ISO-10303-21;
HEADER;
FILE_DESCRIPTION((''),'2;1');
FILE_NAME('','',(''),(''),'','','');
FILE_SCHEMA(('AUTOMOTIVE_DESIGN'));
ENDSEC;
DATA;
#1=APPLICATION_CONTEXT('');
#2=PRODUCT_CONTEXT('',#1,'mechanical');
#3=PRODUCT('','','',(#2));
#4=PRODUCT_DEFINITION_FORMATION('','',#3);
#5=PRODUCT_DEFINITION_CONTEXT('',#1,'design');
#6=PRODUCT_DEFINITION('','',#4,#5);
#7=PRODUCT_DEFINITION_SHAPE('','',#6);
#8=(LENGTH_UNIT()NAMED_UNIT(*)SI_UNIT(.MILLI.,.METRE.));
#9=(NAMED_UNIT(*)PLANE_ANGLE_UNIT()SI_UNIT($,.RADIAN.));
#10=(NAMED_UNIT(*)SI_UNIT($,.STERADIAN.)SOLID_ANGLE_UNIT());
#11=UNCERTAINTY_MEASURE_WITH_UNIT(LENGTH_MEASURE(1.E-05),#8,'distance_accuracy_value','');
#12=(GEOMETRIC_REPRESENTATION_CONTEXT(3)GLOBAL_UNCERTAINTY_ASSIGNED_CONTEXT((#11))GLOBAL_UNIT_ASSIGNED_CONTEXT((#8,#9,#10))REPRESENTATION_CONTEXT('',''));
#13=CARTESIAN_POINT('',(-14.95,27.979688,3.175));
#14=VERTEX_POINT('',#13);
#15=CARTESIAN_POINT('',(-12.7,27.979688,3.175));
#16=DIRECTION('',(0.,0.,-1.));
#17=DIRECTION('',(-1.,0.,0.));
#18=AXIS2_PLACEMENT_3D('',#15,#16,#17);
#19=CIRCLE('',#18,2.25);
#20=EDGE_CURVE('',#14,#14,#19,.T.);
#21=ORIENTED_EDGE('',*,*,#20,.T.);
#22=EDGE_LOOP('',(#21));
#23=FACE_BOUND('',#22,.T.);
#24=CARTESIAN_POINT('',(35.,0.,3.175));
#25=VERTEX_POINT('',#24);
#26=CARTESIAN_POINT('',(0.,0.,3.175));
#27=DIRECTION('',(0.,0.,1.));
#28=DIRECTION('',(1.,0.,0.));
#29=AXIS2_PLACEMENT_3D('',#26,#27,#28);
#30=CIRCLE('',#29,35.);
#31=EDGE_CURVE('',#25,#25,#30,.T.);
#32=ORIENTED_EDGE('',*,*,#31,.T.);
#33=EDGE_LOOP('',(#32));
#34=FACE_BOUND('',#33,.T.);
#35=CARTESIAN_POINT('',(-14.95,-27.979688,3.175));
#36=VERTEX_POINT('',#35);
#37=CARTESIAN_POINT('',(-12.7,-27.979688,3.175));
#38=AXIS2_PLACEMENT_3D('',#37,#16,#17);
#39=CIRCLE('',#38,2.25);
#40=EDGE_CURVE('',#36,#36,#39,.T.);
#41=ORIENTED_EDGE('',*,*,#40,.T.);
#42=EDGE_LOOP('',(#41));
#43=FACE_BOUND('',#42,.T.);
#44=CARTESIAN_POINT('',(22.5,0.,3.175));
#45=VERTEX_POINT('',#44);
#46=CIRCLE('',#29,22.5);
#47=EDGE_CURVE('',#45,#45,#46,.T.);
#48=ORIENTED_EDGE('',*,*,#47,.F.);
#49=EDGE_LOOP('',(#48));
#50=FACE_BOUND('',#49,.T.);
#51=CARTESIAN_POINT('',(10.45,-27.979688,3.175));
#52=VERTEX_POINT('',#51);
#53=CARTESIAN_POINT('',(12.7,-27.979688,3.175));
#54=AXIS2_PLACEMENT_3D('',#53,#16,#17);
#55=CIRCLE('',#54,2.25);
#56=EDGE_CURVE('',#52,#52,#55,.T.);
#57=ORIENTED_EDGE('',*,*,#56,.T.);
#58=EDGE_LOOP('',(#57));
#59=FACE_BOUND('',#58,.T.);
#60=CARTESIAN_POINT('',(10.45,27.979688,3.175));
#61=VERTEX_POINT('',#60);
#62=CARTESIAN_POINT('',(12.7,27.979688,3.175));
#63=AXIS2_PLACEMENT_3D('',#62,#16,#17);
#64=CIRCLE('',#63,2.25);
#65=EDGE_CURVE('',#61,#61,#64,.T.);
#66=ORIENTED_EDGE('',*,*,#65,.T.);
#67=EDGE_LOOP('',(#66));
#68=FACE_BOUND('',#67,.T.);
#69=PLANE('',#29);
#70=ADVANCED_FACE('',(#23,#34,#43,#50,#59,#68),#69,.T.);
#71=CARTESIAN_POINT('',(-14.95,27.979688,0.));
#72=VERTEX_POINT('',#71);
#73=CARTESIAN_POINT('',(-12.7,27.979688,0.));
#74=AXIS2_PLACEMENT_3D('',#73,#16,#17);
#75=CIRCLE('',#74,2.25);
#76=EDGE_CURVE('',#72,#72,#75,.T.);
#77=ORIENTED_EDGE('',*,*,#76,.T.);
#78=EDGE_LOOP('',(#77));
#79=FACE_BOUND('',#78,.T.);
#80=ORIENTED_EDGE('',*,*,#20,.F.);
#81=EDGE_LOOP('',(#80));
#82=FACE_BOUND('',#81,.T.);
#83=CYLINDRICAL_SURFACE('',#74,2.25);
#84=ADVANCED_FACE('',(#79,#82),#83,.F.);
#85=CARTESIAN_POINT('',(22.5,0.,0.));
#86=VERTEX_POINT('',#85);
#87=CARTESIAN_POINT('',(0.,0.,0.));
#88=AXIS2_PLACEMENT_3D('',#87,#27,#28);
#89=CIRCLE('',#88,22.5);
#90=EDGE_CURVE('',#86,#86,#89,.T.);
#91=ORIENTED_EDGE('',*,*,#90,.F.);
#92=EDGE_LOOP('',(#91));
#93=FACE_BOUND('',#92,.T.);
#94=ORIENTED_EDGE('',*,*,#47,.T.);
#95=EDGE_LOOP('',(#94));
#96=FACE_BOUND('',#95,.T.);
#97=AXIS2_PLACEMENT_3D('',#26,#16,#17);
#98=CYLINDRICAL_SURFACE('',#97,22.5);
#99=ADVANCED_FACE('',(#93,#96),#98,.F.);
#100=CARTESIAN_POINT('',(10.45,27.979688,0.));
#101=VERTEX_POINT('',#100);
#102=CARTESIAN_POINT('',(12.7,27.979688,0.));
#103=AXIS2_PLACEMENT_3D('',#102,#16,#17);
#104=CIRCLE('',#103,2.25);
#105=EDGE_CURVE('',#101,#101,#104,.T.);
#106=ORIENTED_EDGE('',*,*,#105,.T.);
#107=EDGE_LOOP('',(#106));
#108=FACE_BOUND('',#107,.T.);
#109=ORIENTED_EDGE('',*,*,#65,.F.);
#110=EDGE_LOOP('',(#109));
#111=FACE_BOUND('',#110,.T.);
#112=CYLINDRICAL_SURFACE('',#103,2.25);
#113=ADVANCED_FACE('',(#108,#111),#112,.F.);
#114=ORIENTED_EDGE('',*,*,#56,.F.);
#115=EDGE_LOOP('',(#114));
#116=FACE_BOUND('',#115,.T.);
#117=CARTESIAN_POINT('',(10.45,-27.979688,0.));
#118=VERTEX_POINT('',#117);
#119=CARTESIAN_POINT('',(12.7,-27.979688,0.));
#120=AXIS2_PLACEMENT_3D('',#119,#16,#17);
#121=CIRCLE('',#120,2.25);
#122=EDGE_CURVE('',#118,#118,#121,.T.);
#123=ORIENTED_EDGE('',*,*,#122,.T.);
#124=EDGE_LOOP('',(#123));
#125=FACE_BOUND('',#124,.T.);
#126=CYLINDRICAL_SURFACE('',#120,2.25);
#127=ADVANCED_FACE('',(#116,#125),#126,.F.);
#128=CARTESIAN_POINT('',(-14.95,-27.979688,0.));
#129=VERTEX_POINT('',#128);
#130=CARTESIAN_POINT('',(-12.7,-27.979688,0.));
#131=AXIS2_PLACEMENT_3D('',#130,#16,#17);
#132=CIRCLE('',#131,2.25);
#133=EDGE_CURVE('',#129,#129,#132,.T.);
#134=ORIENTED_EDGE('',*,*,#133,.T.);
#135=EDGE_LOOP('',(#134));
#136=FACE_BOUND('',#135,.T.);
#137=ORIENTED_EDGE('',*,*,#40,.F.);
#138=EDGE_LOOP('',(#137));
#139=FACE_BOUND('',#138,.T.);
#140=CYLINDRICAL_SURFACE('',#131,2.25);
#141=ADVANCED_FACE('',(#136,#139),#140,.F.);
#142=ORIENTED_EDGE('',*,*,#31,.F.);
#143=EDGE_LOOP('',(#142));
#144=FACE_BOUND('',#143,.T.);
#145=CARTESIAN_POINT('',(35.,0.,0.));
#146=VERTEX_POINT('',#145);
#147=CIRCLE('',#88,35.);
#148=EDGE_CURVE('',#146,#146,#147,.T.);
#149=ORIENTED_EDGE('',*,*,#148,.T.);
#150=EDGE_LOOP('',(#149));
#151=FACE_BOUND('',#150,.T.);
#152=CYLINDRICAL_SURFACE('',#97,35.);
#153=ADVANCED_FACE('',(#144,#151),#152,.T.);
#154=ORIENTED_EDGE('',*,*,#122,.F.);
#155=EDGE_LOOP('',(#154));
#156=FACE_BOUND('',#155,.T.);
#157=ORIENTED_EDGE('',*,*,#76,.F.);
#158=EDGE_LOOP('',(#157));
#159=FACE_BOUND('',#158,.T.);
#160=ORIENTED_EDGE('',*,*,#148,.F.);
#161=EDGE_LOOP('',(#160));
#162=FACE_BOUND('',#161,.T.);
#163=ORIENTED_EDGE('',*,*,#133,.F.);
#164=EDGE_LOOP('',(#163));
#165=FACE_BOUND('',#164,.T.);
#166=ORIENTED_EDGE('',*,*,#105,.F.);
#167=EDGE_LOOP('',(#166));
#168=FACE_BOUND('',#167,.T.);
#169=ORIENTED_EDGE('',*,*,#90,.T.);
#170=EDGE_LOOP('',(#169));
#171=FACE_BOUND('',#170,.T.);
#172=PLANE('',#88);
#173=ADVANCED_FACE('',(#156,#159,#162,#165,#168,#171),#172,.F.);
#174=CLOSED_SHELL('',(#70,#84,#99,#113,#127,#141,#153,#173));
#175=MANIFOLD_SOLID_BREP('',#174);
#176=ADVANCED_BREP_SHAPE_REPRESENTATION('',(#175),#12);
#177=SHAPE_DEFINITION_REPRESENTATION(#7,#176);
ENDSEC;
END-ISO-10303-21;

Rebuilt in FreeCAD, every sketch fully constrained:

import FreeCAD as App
import Part
import Sketcher
from FreeCAD import Vector
Q = App.Units.Quantity

doc = App.newDocument("Part")
body = doc.addObject("PartDesign::Body", "Body")

# Sketch on XY plane
sketch1 = body.newObject("Sketcher::SketchObject", "Sketch")
sketch1.AttachmentSupport = (doc.getObject("XY_Plane"), [""])
sketch1.MapMode = "FlatFace"
sketch1.addGeometry(Part.Circle(Vector(0, 0, 0), Vector(0, 0, 1), 35), False)
sketch1.addGeometry(Part.Circle(Vector(0, 0, 0), Vector(0, 0, 1), 22), False)
sketch1.addConstraint(Sketcher.Constraint("Coincident", 0, 3, -1, 1))
sketch1.addConstraint(Sketcher.Constraint("Coincident", 1, 3, -1, 1))
sketch1.addConstraint(Sketcher.Constraint("Diameter", 0, Q("70 mm")))
sketch1.addConstraint(Sketcher.Constraint("Diameter", 1, Q("45 mm")))
pad1 = body.newObject("PartDesign::Pad", "Pad")
pad1.Profile = sketch1
pad1.Length = 3.175

# Sketch on XY plane
sketch2 = body.newObject("Sketcher::SketchObject", "Sketch001")
sketch2.AttachmentSupport = (doc.getObject("XY_Plane"), [""])
sketch2.MapMode = "FlatFace"
sketch2.addGeometry(Part.Circle(Vector(12.7, 28, 0), Vector(0, 0, 1), 2.2), False)
sketch2.addGeometry(Part.Circle(Vector(-12.7, 28, 0), Vector(0, 0, 1), 2.2), False)
sketch2.addGeometry(Part.Circle(Vector(-12.7, -28, 0), Vector(0, 0, 1), 2.2), False)
sketch2.addGeometry(Part.Circle(Vector(12.7, -28, 0), Vector(0, 0, 1), 2.2), False)
sketch2.addConstraint(Sketcher.Constraint("Equal", 0, 1))
sketch2.addConstraint(Sketcher.Constraint("Equal", 1, 2))
sketch2.addConstraint(Sketcher.Constraint("Equal", 2, 3))
sketch2.addConstraint(Sketcher.Constraint("Symmetric", 0, 3, 2, 3, -1, 1))
sketch2.addConstraint(Sketcher.Constraint("Symmetric", 1, 3, 3, 3, -1, 1))
sketch2.addConstraint(Sketcher.Constraint("Symmetric", 0, 3, 1, 3, -2))
sketch2.addConstraint(Sketcher.Constraint("Diameter", 0, Q("4.5 mm")))
sketch2.addConstraint(Sketcher.Constraint("DistanceX", -1, 1, 0, 3, Q("12.7 mm")))
sketch2.addConstraint(Sketcher.Constraint("DistanceY", -1, 1, 0, 3, Q("27.979688 mm")))
doc.recompute()
hole = body.newObject("PartDesign::Hole", "Hole")
hole.Profile = sketch2
hole.ThreadType = "None"
hole.Diameter = 4.5
hole.DepthType = "ThroughAll"
hole.Reversed = True

doc.recompute()
